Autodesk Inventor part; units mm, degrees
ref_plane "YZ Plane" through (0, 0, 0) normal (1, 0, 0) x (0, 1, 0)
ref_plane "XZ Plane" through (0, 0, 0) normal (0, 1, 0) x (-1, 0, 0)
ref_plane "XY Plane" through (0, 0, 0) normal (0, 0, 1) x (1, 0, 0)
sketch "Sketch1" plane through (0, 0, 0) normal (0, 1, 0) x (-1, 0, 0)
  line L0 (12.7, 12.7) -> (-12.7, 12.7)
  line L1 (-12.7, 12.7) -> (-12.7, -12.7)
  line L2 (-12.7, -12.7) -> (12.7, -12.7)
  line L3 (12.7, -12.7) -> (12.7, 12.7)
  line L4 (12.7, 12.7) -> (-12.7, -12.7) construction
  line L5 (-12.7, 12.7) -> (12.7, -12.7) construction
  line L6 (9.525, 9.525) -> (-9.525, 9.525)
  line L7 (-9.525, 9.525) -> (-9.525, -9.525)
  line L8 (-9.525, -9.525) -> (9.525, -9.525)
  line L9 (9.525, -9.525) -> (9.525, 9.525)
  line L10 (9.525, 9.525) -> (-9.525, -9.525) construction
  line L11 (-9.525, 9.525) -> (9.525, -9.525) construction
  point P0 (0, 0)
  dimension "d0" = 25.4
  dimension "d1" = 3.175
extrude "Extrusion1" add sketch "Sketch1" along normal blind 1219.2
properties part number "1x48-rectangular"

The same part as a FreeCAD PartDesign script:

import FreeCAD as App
import Part
import Sketcher

V = App.Vector
Q = App.Units.Quantity


def add_polygon(sketch, points):
    """Adds a closed chain of lines whose ends are joined by coincident constraints."""
    first, n = sketch.GeometryCount, len(points)
    for a, b in zip(points, points[1:] + points[:1]):
        sketch.addGeometry(Part.LineSegment(App.Vector(*a, 0), App.Vector(*b, 0)), False)
    for i in range(n):
        sketch.addConstraint(Sketcher.Constraint("Coincident", first + i, 2, first + (i + 1) % n, 1))

doc = App.newDocument("Part")
body = doc.addObject("PartDesign::Body", "Body")

sketch1 = body.newObject("Sketcher::SketchObject", "Sketch")
sketch1.AttachmentSupport = (doc.getObject("XZ_Plane"), [""])
sketch1.MapMode = "FlatFace"
add_polygon(sketch1, [(-12.7, -12.7), (-12.7, 12.7), (12.7, 12.7), (12.7, -12.7)])
add_polygon(sketch1, [(9.525, 9.525), (-9.525, 9.525), (-9.525, -9.525), (9.525, -9.525)])
sketch1.addConstraint([
    Sketcher.Constraint("Vertical", 0),
    Sketcher.Constraint("Horizontal", 1),
    Sketcher.Constraint("Vertical", 2),
    Sketcher.Constraint("Horizontal", 3),
    Sketcher.Constraint("Horizontal", 4),
    Sketcher.Constraint("Vertical", 5),
    Sketcher.Constraint("Horizontal", 6),
    Sketcher.Constraint("Vertical", 7),
    Sketcher.Constraint("Symmetric", 0, 2, 2, 2, -1, 1),
    Sketcher.Constraint("Symmetric", 4, 2, 6, 2, -1, 1),
    Sketcher.Constraint("Equal", 3, 0),
    Sketcher.Constraint("Equal", 6, 5),
    Sketcher.Constraint("DistanceX", 1, 1, 1, 2, Q("1 in")),
    Sketcher.Constraint("DistanceX", 0, 2, 4, 2, Q("0.125 in")),
])
pad1 = body.newObject("PartDesign::Pad", "Pad")
pad1.Profile = sketch1
pad1.Length = Q("48 in")
pad1.Reversed = True

doc.recompute()
